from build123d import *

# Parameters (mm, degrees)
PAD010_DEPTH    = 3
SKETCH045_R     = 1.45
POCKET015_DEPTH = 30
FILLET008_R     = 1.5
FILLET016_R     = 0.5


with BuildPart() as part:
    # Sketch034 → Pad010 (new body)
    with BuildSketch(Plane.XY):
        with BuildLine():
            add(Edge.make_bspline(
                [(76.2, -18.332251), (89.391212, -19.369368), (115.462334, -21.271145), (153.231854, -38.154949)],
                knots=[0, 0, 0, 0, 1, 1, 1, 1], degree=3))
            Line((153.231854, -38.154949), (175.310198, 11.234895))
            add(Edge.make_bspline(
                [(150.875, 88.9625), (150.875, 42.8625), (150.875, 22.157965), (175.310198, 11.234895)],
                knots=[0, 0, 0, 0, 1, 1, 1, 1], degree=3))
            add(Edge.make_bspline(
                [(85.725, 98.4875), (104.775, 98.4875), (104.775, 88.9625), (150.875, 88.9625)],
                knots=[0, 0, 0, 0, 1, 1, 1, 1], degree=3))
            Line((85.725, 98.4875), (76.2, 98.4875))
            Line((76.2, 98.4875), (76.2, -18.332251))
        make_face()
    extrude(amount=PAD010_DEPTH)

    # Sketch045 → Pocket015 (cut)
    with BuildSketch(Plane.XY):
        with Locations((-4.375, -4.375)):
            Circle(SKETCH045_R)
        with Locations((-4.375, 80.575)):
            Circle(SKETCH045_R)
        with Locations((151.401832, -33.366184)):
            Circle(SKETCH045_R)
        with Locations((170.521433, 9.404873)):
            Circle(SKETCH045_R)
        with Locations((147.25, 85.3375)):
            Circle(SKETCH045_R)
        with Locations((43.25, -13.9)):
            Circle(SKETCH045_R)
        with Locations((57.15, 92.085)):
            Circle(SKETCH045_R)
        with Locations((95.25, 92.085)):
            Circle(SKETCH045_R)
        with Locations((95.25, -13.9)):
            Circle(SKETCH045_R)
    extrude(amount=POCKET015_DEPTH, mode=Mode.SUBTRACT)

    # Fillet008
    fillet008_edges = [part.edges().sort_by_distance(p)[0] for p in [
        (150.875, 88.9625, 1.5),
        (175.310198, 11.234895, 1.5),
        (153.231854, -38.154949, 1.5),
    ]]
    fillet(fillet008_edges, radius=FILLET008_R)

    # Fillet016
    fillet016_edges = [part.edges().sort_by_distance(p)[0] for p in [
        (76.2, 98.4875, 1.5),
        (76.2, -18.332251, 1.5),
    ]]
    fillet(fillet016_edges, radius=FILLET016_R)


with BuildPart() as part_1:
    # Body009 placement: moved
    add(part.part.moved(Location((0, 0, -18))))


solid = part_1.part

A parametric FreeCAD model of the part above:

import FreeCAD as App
import Part
import Sketcher
from FreeCAD import Vector
Q = App.Units.Quantity


def edges_at(feature, points):
    """Names of the edges that pass closest to the given points."""
    edges = feature.Shape.Edges
    near = lambda p: min(range(len(edges)), key=lambda i: edges[i].distToShape(Part.Vertex(*p))[0])
    return sorted({f"Edge{near(p) + 1}" for p in points})

doc = App.newDocument("Part")
params = doc.addObject("Spreadsheet::Sheet", "Params")
for row, (alias, value) in enumerate([
    ("pad1_length", "3 mm"),
    ("sketch2_diameter", "2.9 mm"),
    ("pocket1_length", "30 mm"),
    ("fillet_radius", "1.5 mm"),
    ("fillet2_radius", "0.5 mm"),
], start=1):
    params.set(f"A{row}", alias)
    params.set(f"B{row}", "=" + value)
    params.setAlias(f"B{row}", alias)

body = doc.addObject("PartDesign::Body", "Body")

# Sketch on XY plane
sketch1 = body.newObject("Sketcher::SketchObject", "Sketch")
sketch1.AttachmentSupport = (doc.getObject("XY_Plane"), [""])
sketch1.MapMode = "FlatFace"
sketch1.addGeometry([
    Part.BSplineCurve([Vector(76.2, -18.332251, 0), Vector(89.391212, -19.369368, 0), Vector(115.462334, -21.271145, 0), Vector(153.231854, -38.154949, 0)], [4, 4], [0, 1], False, 3, [1, 1, 1, 1], False),  # 0
    Part.LineSegment(Vector(153.231854, -38.154949, 0), Vector(175.310198, 11.234895, 0)),  # 1
    Part.BSplineCurve([Vector(150.875, 88.9625, 0), Vector(150.875, 42.8625, 0), Vector(150.875, 22.157965, 0), Vector(175.310198, 11.234895, 0)], [4, 4], [0, 1], False, 3, [1, 1, 1, 1], False),  # 2
    Part.BSplineCurve([Vector(85.725, 98.4875, 0), Vector(104.775, 98.4875, 0), Vector(104.775, 88.9625, 0), Vector(150.875, 88.9625, 0)], [4, 4], [0, 1], False, 3, [1, 1, 1, 1], False),  # 3
    Part.LineSegment(Vector(85.725, 98.4875, 0), Vector(76.2, 98.4875, 0)),  # 4
    Part.LineSegment(Vector(76.2, 98.4875, 0), Vector(76.2, -18.332251, 0)),  # 5
], False)
sketch1.addConstraint([
    Sketcher.Constraint("Block", 0),
    Sketcher.Constraint("Block", 2),
    Sketcher.Constraint("Block", 3),
    Sketcher.Constraint("Coincident", 0, 2, 1, 1),
    Sketcher.Constraint("Coincident", 1, 2, 2, 2),
    Sketcher.Constraint("Coincident", 3, 1, 4, 1),
    Sketcher.Constraint("Coincident", 4, 2, 5, 1),
    Sketcher.Constraint("Coincident", 5, 2, 0, 1),
    Sketcher.Constraint("Horizontal", 4),
    Sketcher.Constraint("Vertical", 5),
])
pad1 = body.newObject("PartDesign::Pad", "Pad")
pad1.Profile = sketch1
pad1.setExpression("Length", "Params.pad1_length")

# Sketch on XY plane
sketch2 = body.newObject("Sketcher::SketchObject", "Sketch001")
sketch2.AttachmentSupport = (doc.getObject("XY_Plane"), [""])
sketch2.MapMode = "FlatFace"
sketch2.addGeometry([
    Part.Circle(Vector(-4.4, -4.4, 0), Vector(0, 0, 1), 1.4),  # 0
    Part.Circle(Vector(-4.4, 80.6, 0), Vector(0, 0, 1), 1.4),  # 1
    Part.Circle(Vector(151.4, -33.4, 0), Vector(0, 0, 1), 1.4),  # 2
    Part.Circle(Vector(170.5, 9.4, 0), Vector(0, 0, 1), 1.4),  # 3
    Part.Circle(Vector(147.2, 85.3, 0), Vector(0, 0, 1), 1.4),  # 4
    Part.Circle(Vector(43.2, -13.9, 0), Vector(0, 0, 1), 1.4),  # 5
    Part.Circle(Vector(57.1, 92.1, 0), Vector(0, 0, 1), 1.4),  # 6
    Part.Circle(Vector(95.2, 92.1, 0), Vector(0, 0, 1), 1.4),  # 7
    Part.Circle(Vector(95.2, -13.9, 0), Vector(0, 0, 1), 1.4),  # 8
], False)
sketch2.addConstraint([
    Sketcher.Constraint("Equal", 0, 1),
    Sketcher.Constraint("Equal", 1, 2),
    Sketcher.Constraint("Equal", 2, 3),
    Sketcher.Constraint("Equal", 3, 4),
    Sketcher.Constraint("Equal", 4, 5),
    Sketcher.Constraint("Equal", 5, 6),
    Sketcher.Constraint("Equal", 6, 7),
    Sketcher.Constraint("Equal", 7, 8),
    Sketcher.Constraint("Horizontal", 6, 3, 7, 3),
    Sketcher.Constraint("Horizontal", 5, 3, 8, 3),
    Sketcher.Constraint("Vertical", 0, 3, 1, 3),
    Sketcher.Constraint("Vertical", 7, 3, 8, 3),
    Sketcher.Constraint("Diameter", 0, Q("2.9 mm")),
    Sketcher.Constraint("DistanceX", 5, 3, 4, 3, Q("104 mm")),
    Sketcher.Constraint("DistanceX", 7, 3, 4, 3, Q("52 mm")),
    Sketcher.Constraint("DistanceY", 5, 3, -1, 1, Q("13.9 mm")),
    Sketcher.Constraint("DistanceX", 6, 3, 4, 3, Q("90.1 mm")),
    Sketcher.Constraint("DistanceX", -1, 1, 4, 3, Q("147.25 mm")),
    Sketcher.Constraint("DistanceY", 0, 3, 1, 3, Q("84.95 mm")),
    Sketcher.Constraint("DistanceY", 1, 3, 6, 3, Q("11.51 mm")),
    Sketcher.Constraint("DistanceX", 0, 3, -1, 1, Q("4.375 mm")),
    Sketcher.Constraint("DistanceY", 0, 3, -1, 1, Q("4.375 mm")),
    Sketcher.Constraint("DistanceY", -1, 1, 4, 3, Q("85.3375 mm")),
    Sketcher.Constraint("DistanceX", 2, 3, 3, 3, Q("19.119601 mm")),
    Sketcher.Constraint("DistanceX", -1, 1, 2, 3, Q("151.401832 mm")),
    Sketcher.Constraint("DistanceY", 2, 3, -1, 1, Q("33.366184 mm")),
    Sketcher.Constraint("DistanceY", -1, 1, 3, 3, Q("9.404873 mm")),
])
sketch2.setExpression("Constraints[12]", "Params.sketch2_diameter")
pocket1 = body.newObject("PartDesign::Pocket", "Pocket")
pocket1.Profile = sketch2
pocket1.setExpression("Length", "Params.pocket1_length")
pocket1.Reversed = True
doc.recompute()

fillet = body.newObject("PartDesign::Fillet", "Fillet")
fillet.Base = (pocket1, edges_at(pocket1, [(150.875, 88.963, 1.5), (175.31, 11.235, 1.5), (153.232, -38.155, 1.5)]))
fillet.setExpression("Radius", "Params.fillet_radius")
doc.recompute()

fillet2 = body.newObject("PartDesign::Fillet", "Fillet001")
fillet2.Base = (fillet, edges_at(fillet, [(76.2, 98.487, 1.5), (76.2, -18.332, 1.5)]))
fillet2.setExpression("Radius", "Params.fillet2_radius")
body2 = doc.addObject("PartDesign::Body", "Body001")
doc.recompute()

body.Placement = App.Placement(Vector(0, 0, -18), App.Rotation(Vector(0, 0, 1), 0))
boolean = body2.newObject("PartDesign::Boolean", "Boolean")
boolean.Type = "Fuse"
boolean.addObjects([body])

doc.recompute()
